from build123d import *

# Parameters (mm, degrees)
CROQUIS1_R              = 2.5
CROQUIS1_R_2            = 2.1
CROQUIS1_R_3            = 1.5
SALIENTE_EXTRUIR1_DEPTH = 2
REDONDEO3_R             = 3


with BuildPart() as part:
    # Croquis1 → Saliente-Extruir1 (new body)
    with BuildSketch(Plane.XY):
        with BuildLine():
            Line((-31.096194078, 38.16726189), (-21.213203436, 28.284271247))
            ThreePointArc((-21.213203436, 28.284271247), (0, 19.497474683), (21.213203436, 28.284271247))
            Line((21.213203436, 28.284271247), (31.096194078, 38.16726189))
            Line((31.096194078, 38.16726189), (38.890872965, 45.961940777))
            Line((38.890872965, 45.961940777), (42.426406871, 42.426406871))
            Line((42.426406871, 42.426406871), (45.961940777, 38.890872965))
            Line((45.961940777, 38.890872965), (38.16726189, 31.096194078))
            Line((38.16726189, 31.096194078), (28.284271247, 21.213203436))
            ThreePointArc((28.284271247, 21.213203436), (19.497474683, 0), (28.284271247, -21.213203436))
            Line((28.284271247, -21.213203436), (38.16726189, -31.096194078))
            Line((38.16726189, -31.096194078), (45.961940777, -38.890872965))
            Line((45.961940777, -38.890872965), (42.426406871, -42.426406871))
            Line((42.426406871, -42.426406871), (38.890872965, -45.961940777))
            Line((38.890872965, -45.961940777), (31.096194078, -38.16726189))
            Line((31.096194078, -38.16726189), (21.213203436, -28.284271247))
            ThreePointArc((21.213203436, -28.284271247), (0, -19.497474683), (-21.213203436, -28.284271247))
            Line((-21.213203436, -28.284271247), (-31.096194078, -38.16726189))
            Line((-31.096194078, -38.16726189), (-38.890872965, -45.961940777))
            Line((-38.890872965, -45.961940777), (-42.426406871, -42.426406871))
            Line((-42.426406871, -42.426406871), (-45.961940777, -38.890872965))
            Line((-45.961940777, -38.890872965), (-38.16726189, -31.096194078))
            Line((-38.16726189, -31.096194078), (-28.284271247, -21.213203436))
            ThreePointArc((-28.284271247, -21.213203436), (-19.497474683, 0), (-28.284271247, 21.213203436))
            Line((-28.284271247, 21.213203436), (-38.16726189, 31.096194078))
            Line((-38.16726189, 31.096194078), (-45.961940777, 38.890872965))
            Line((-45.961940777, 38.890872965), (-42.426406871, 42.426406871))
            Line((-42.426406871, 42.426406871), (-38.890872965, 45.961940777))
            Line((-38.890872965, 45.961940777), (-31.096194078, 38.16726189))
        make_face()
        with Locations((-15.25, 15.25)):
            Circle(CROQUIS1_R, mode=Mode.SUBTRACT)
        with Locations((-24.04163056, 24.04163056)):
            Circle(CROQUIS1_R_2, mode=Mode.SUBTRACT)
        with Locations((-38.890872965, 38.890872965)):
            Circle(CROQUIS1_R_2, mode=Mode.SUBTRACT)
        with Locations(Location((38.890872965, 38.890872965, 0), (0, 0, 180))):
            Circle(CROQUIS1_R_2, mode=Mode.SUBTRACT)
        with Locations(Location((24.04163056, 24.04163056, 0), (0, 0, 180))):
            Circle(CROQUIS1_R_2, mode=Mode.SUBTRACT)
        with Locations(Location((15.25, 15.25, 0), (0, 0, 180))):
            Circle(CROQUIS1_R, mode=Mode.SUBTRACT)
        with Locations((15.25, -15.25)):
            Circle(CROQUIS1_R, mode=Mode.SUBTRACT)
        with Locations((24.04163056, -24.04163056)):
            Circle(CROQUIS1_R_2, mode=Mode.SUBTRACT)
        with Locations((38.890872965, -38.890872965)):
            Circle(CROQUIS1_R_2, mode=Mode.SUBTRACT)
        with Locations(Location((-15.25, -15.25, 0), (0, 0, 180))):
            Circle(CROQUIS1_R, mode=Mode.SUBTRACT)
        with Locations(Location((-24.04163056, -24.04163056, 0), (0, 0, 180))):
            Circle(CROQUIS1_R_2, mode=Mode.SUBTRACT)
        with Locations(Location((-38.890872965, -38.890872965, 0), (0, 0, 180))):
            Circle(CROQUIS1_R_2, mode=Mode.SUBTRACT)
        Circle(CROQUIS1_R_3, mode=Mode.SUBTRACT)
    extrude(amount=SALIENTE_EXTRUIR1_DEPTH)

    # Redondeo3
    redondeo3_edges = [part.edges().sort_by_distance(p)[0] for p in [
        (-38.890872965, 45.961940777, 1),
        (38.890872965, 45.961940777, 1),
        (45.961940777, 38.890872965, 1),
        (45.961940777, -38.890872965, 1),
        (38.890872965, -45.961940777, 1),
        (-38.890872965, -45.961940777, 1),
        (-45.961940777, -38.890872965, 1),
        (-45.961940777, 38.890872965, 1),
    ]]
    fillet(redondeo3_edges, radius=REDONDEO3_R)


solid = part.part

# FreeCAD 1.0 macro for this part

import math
import FreeCAD as App
import Part
import Sketcher
Q = App.Units.Quantity


def edges_at(feature, points):
    """Names of the edges that pass closest to the given points."""
    edges = feature.Shape.Edges
    near = lambda p: min(range(len(edges)), key=lambda i: edges[i].distToShape(Part.Vertex(*p))[0])
    return sorted({f"Edge{near(p) + 1}" for p in points})

doc = App.newDocument("Part")
params = doc.addObject("Spreadsheet::Sheet", "Params")
for row, (alias, value) in enumerate([
    ("sketch1_diameter", "5 mm"),
    ("sketch1_diameter2", "3 mm"),
    ("sketch1_radius", "30 mm"),
    ("sketch1_diameter3", "4.2 mm"),
    ("sketch1_length", "10 mm"),
    ("pad1_length", "2 mm"),
    ("fillet_radius", "3 mm"),
], start=1):
    params.set(f"A{row}", alias)
    params.set(f"B{row}", "=" + value)
    params.setAlias(f"B{row}", alias)

body = doc.addObject("PartDesign::Body", "Body")

sketch1 = body.newObject("Sketcher::SketchObject", "Sketch")
sketch1.AttachmentSupport = (doc.getObject("XY_Plane"), [""])
sketch1.MapMode = "FlatFace"
sketch1.addGeometry(Part.LineSegment(App.Vector(-21.2, 28.3, 0), App.Vector(-31.1, 38.2, 0)), False)
sketch1.addGeometry(Part.LineSegment(App.Vector(-31.1, 38.2, 0), App.Vector(-38.9, 46, 0)), False)
sketch1.addGeometry(Part.LineSegment(App.Vector(-38.9, 46, 0), App.Vector(-46, 38.9, 0)), False)
sketch1.addGeometry(Part.LineSegment(App.Vector(-46, 38.9, 0), App.Vector(-38.2, 31.1, 0)), False)
sketch1.addGeometry(Part.LineSegment(App.Vector(-38.2, 31.1, 0), App.Vector(-28.3, 21.2, 0)), False)
sketch1.addGeometry(Part.ArcOfCircle(Part.Circle(App.Vector(-49.5, 0, 0), App.Vector(0, 0, 1), 30), math.radians(-45), math.radians(45)), False)
sketch1.addGeometry(Part.LineSegment(App.Vector(-28.3, -21.2, 0), App.Vector(-38.2, -31.1, 0)), False)
sketch1.addGeometry(Part.LineSegment(App.Vector(-38.2, -31.1, 0), App.Vector(-46, -38.9, 0)), False)
sketch1.addGeometry(Part.LineSegment(App.Vector(-46, -38.9, 0), App.Vector(-38.9, -46, 0)), False)
sketch1.addGeometry(Part.LineSegment(App.Vector(-38.9, -46, 0), App.Vector(-31.1, -38.2, 0)), False)
sketch1.addGeometry(Part.LineSegment(App.Vector(-31.1, -38.2, 0), App.Vector(-21.2, -28.3, 0)), False)
sketch1.addGeometry(Part.ArcOfCircle(Part.Circle(App.Vector(0, -49.5, 0), App.Vector(0, 0, 1), 30), math.radians(45), math.radians(135)), False)
sketch1.addGeometry(Part.LineSegment(App.Vector(21.2, -28.3, 0), App.Vector(31.1, -38.2, 0)), False)
sketch1.addGeometry(Part.LineSegment(App.Vector(31.1, -38.2, 0), App.Vector(38.9, -46, 0)), False)
sketch1.addGeometry(Part.LineSegment(App.Vector(38.9, -46, 0), App.Vector(46, -38.9, 0)), False)
sketch1.addGeometry(Part.LineSegment(App.Vector(46, -38.9, 0), App.Vector(38.2, -31.1, 0)), False)
sketch1.addGeometry(Part.LineSegment(App.Vector(38.2, -31.1, 0), App.Vector(28.3, -21.2, 0)), False)
sketch1.addGeometry(Part.ArcOfCircle(Part.Circle(App.Vector(49.5, 0, 0), App.Vector(0, 0, 1), 30), math.radians(135), math.radians(225)), False)
sketch1.addGeometry(Part.LineSegment(App.Vector(28.3, 21.2, 0), App.Vector(38.2, 31.1, 0)), False)
sketch1.addGeometry(Part.LineSegment(App.Vector(38.2, 31.1, 0), App.Vector(46, 38.9, 0)), False)
sketch1.addGeometry(Part.LineSegment(App.Vector(46, 38.9, 0), App.Vector(38.9, 46, 0)), False)
sketch1.addGeometry(Part.LineSegment(App.Vector(38.9, 46, 0), App.Vector(31.1, 38.2, 0)), False)
sketch1.addGeometry(Part.LineSegment(App.Vector(31.1, 38.2, 0), App.Vector(21.2, 28.3, 0)), False)
sketch1.addGeometry(Part.ArcOfCircle(Part.Circle(App.Vector(0, 49.5, 0), App.Vector(0, 0, 1), 30), math.radians(-135), math.radians(-45)), False)
sketch1.addGeometry(Part.Circle(App.Vector(38.9, -38.9, 0), App.Vector(0, 0, 1), 2.1), False)
sketch1.addGeometry(Part.Circle(App.Vector(24, -24, 0), App.Vector(0, 0, 1), 2.1), False)
sketch1.addGeometry(Part.Circle(App.Vector(15.2, -15.2, 0), App.Vector(0, 0, 1), 2.5), False)
sketch1.addGeometry(Part.Circle(App.Vector(-38.9, -38.9, 0), App.Vector(0, 0, 1), 2.1), False)
sketch1.addGeometry(Part.Circle(App.Vector(-24, -24, 0), App.Vector(0, 0, 1), 2.1), False)
sketch1.addGeometry(Part.Circle(App.Vector(-15.2, -15.2, 0), App.Vector(0, 0, 1), 2.5), False)
sketch1.addGeometry(Part.Circle(App.Vector(15.2, 15.2, 0), App.Vector(0, 0, 1), 2.5), False)
sketch1.addGeometry(Part.Circle(App.Vector(24, 24, 0), App.Vector(0, 0, 1), 2.1), False)
sketch1.addGeometry(Part.Circle(App.Vector(38.9, 38.9, 0), App.Vector(0, 0, 1), 2.1), False)
sketch1.addGeometry(Part.Circle(App.Vector(0, 0, 0), App.Vector(0, 0, 1), 1.5), False)
sketch1.addGeometry(Part.Circle(App.Vector(-15.2, 15.2, 0), App.Vector(0, 0, 1), 2.5), False)
sketch1.addGeometry(Part.Circle(App.Vector(-24, 24, 0), App.Vector(0, 0, 1), 2.1), False)
sketch1.addGeometry(Part.Circle(App.Vector(-38.9, 38.9, 0), App.Vector(0, 0, 1), 2.1), False)
sketch1.addConstraint(Sketcher.Constraint("Coincident", 0, 2, 1, 1))
sketch1.addConstraint(Sketcher.Constraint("Coincident", 1, 2, 2, 1))
sketch1.addConstraint(Sketcher.Constraint("Coincident", 2, 2, 3, 1))
sketch1.addConstraint(Sketcher.Constraint("Coincident", 3, 2, 4, 1))
sketch1.addConstraint(Sketcher.Constraint("Tangent", 4, 2, 5, 2))
sketch1.addConstraint(Sketcher.Constraint("Tangent", 5, 1, 6, 1))
sketch1.addConstraint(Sketcher.Constraint("Coincident", 6, 2, 7, 1))
sketch1.addConstraint(Sketcher.Constraint("Coincident", 7, 2, 8, 1))
sketch1.addConstraint(Sketcher.Constraint("Coincident", 8, 2, 9, 1))
sketch1.addConstraint(Sketcher.Constraint("Coincident", 9, 2, 10, 1))
sketch1.addConstraint(Sketcher.Constraint("Tangent", 10, 2, 11, 2))
sketch1.addConstraint(Sketcher.Constraint("Tangent", 11, 1, 12, 1))
sketch1.addConstraint(Sketcher.Constraint("Coincident", 12, 2, 13, 1))
sketch1.addConstraint(Sketcher.Constraint("Coincident", 13, 2, 14, 1))
sketch1.addConstraint(Sketcher.Constraint("Coincident", 14, 2, 15, 1))
sketch1.addConstraint(Sketcher.Constraint("Coincident", 15, 2, 16, 1))
sketch1.addConstraint(Sketcher.Constraint("Tangent", 16, 2, 17, 2))
sketch1.addConstraint(Sketcher.Constraint("Tangent", 17, 1, 18, 1))
sketch1.addConstraint(Sketcher.Constraint("Coincident", 18, 2, 19, 1))
sketch1.addConstraint(Sketcher.Constraint("Coincident", 19, 2, 20, 1))
sketch1.addConstraint(Sketcher.Constraint("Coincident", 20, 2, 21, 1))
sketch1.addConstraint(Sketcher.Constraint("Coincident", 21, 2, 22, 1))
sketch1.addConstraint(Sketcher.Constraint("Tangent", 22, 2, 23, 2))
sketch1.addConstraint(Sketcher.Constraint("Tangent", 23, 1, 0, 1))
sketch1.addConstraint(Sketcher.Constraint("Coincident", 33, 3, -1, 1))
sketch1.addConstraint(Sketcher.Constraint("Equal", 5, 11))
sketch1.addConstraint(Sketcher.Constraint("Equal", 11, 17))
sketch1.addConstraint(Sketcher.Constraint("Equal", 17, 23))
sketch1.addConstraint(Sketcher.Constraint("Equal", 24, 25))
sketch1.addConstraint(Sketcher.Constraint("Equal", 25, 27))
sketch1.addConstraint(Sketcher.Constraint("Equal", 27, 28))
sketch1.addConstraint(Sketcher.Constraint("Equal", 26, 29))
sketch1.addConstraint(Sketcher.Constraint("Equal", 29, 30))
sketch1.addConstraint(Sketcher.Constraint("Equal", 28, 31))
sketch1.addConstraint(Sketcher.Constraint("Equal", 31, 32))
sketch1.addConstraint(Sketcher.Constraint("Equal", 30, 34))
sketch1.addConstraint(Sketcher.Constraint("Equal", 32, 35))
sketch1.addConstraint(Sketcher.Constraint("Equal", 35, 36))
sketch1.addConstraint(Sketcher.Constraint("Symmetric", 5, 3, 17, 3, -1, 1))
sketch1.addConstraint(Sketcher.Constraint("Symmetric", 11, 3, 23, 3, -1, 1))
sketch1.addConstraint(Sketcher.Constraint("Symmetric", 29, 3, 30, 3, -1, 1))
sketch1.addConstraint(Sketcher.Constraint("Symmetric", 28, 3, 31, 3, -1, 1))
sketch1.addConstraint(Sketcher.Constraint("Symmetric", 27, 3, 32, 3, -1, 1))
sketch1.addConstraint(Sketcher.Constraint("Symmetric", 26, 3, 34, 3, -1, 1))
sketch1.addConstraint(Sketcher.Constraint("Symmetric", 25, 3, 35, 3, -1, 1))
sketch1.addConstraint(Sketcher.Constraint("Symmetric", 24, 3, 36, 3, -1, 1))
sketch1.addConstraint(Sketcher.Constraint("Symmetric", 0, 2, 12, 2, -1, 1))
sketch1.addConstraint(Sketcher.Constraint("Symmetric", 1, 2, 13, 2, -1, 1))
sketch1.addConstraint(Sketcher.Constraint("Symmetric", 2, 2, 14, 2, -1, 1))
sketch1.addConstraint(Sketcher.Constraint("Symmetric", 3, 2, 15, 2, -1, 1))
sketch1.addConstraint(Sketcher.Constraint("Symmetric", 6, 2, 18, 2, -1, 1))
sketch1.addConstraint(Sketcher.Constraint("Symmetric", 7, 2, 19, 2, -1, 1))
sketch1.addConstraint(Sketcher.Constraint("Symmetric", 8, 2, 20, 2, -1, 1))
sketch1.addConstraint(Sketcher.Constraint("Symmetric", 9, 2, 21, 2, -1, 1))
sketch1.addConstraint(Sketcher.Constraint("Symmetric", 24, 3, 27, 3, -2))
sketch1.addConstraint(Sketcher.Constraint("Symmetric", 25, 3, 28, 3, -2))
sketch1.addConstraint(Sketcher.Constraint("Symmetric", 26, 3, 29, 3, -2))
sketch1.addConstraint(Sketcher.Constraint("Symmetric", 10, 2, 11, 1, -2))
sketch1.addConstraint(Sketcher.Constraint("Symmetric", 8, 2, 13, 2, -2))
sketch1.addConstraint(Sketcher.Constraint("Symmetric", 7, 2, 14, 2, -2))
sketch1.addConstraint(Sketcher.Constraint("Symmetric", 6, 2, 15, 2, -2))
sketch1.addConstraint(Sketcher.Constraint("PointOnObject", 5, 3, -1))
sketch1.addConstraint(Sketcher.Constraint("Parallel", 0, 1))
sketch1.addConstraint(Sketcher.Constraint("Perpendicular", 1, 2))
sketch1.addConstraint(Sketcher.Constraint("Perpendicular", 2, 3))
sketch1.addConstraint(Sketcher.Constraint("Parallel", 3, 4))
sketch1.addConstraint(Sketcher.Constraint("Perpendicular", 4, 6))
sketch1.addConstraint(Sketcher.Constraint("Horizontal", 36, 3, 2, 2))
sketch1.addConstraint(Sketcher.Constraint("Horizontal", 9, 2, 12, 2))
sketch1.addConstraint(Sketcher.Constraint("Vertical", 36, 3, 1, 2))
sketch1.addConstraint(Sketcher.Constraint("Equal", 1, 3))
sketch1.addConstraint(Sketcher.Constraint("Equal", 0, 4))
sketch1.addConstraint(Sketcher.Constraint("Diameter", 26, Q("5 mm")))
sketch1.addConstraint(Sketcher.Constraint("Diameter", 33, Q("3 mm")))
sketch1.addConstraint(Sketcher.Constraint("Radius", 5, Q("30 mm")))
sketch1.addConstraint(Sketcher.Constraint("Diameter", 24, Q("4.2 mm")))
sketch1.addConstraint(Sketcher.Constraint("Distance", 2, Q("10 mm")))
sketch1.addConstraint(Sketcher.Constraint("DistanceX", 29, 3, 26, 3, Q("30.5 mm")))
sketch1.addConstraint(Sketcher.Constraint("DistanceY", 26, 3, 30, 3, Q("30.5 mm")))
sketch1.addConstraint(Sketcher.Constraint("DistanceY", 11, 3, 24, 3, Q("10.606602 mm")))
sketch1.addConstraint(Sketcher.Constraint("Distance", 0, Q("13.976659 mm")))
sketch1.addConstraint(Sketcher.Constraint("DistanceX", -1, 1, 25, 3, Q("24.041631 mm")))
sketch1.addConstraint(Sketcher.Constraint("DistanceY", 25, 3, -1, 1, Q("24.041631 mm")))
sketch1.setExpression("Constraints[72]", "Params.sketch1_diameter")
sketch1.setExpression("Constraints[73]", "Params.sketch1_diameter2")
sketch1.setExpression("Constraints[74]", "Params.sketch1_radius")
sketch1.setExpression("Constraints[75]", "Params.sketch1_diameter3")
sketch1.setExpression("Constraints[76]", "Params.sketch1_length")
pad1 = body.newObject("PartDesign::Pad", "Pad")
pad1.Profile = sketch1
pad1.setExpression("Length", "Params.pad1_length")
doc.recompute()

fillet = body.newObject("PartDesign::Fillet", "Fillet")
fillet.Base = (pad1, edges_at(pad1, [
    (-38.891, 45.962, 1),
    (38.891, 45.962, 1),
    (45.962, 38.891, 1),
    (45.962, -38.891, 1),
    (38.891, -45.962, 1),
    (-38.891, -45.962, 1),
    (-45.962, -38.891, 1),
    (-45.962, 38.891, 1),
]))
fillet.setExpression("Radius", "Params.fillet_radius")

doc.recompute()
